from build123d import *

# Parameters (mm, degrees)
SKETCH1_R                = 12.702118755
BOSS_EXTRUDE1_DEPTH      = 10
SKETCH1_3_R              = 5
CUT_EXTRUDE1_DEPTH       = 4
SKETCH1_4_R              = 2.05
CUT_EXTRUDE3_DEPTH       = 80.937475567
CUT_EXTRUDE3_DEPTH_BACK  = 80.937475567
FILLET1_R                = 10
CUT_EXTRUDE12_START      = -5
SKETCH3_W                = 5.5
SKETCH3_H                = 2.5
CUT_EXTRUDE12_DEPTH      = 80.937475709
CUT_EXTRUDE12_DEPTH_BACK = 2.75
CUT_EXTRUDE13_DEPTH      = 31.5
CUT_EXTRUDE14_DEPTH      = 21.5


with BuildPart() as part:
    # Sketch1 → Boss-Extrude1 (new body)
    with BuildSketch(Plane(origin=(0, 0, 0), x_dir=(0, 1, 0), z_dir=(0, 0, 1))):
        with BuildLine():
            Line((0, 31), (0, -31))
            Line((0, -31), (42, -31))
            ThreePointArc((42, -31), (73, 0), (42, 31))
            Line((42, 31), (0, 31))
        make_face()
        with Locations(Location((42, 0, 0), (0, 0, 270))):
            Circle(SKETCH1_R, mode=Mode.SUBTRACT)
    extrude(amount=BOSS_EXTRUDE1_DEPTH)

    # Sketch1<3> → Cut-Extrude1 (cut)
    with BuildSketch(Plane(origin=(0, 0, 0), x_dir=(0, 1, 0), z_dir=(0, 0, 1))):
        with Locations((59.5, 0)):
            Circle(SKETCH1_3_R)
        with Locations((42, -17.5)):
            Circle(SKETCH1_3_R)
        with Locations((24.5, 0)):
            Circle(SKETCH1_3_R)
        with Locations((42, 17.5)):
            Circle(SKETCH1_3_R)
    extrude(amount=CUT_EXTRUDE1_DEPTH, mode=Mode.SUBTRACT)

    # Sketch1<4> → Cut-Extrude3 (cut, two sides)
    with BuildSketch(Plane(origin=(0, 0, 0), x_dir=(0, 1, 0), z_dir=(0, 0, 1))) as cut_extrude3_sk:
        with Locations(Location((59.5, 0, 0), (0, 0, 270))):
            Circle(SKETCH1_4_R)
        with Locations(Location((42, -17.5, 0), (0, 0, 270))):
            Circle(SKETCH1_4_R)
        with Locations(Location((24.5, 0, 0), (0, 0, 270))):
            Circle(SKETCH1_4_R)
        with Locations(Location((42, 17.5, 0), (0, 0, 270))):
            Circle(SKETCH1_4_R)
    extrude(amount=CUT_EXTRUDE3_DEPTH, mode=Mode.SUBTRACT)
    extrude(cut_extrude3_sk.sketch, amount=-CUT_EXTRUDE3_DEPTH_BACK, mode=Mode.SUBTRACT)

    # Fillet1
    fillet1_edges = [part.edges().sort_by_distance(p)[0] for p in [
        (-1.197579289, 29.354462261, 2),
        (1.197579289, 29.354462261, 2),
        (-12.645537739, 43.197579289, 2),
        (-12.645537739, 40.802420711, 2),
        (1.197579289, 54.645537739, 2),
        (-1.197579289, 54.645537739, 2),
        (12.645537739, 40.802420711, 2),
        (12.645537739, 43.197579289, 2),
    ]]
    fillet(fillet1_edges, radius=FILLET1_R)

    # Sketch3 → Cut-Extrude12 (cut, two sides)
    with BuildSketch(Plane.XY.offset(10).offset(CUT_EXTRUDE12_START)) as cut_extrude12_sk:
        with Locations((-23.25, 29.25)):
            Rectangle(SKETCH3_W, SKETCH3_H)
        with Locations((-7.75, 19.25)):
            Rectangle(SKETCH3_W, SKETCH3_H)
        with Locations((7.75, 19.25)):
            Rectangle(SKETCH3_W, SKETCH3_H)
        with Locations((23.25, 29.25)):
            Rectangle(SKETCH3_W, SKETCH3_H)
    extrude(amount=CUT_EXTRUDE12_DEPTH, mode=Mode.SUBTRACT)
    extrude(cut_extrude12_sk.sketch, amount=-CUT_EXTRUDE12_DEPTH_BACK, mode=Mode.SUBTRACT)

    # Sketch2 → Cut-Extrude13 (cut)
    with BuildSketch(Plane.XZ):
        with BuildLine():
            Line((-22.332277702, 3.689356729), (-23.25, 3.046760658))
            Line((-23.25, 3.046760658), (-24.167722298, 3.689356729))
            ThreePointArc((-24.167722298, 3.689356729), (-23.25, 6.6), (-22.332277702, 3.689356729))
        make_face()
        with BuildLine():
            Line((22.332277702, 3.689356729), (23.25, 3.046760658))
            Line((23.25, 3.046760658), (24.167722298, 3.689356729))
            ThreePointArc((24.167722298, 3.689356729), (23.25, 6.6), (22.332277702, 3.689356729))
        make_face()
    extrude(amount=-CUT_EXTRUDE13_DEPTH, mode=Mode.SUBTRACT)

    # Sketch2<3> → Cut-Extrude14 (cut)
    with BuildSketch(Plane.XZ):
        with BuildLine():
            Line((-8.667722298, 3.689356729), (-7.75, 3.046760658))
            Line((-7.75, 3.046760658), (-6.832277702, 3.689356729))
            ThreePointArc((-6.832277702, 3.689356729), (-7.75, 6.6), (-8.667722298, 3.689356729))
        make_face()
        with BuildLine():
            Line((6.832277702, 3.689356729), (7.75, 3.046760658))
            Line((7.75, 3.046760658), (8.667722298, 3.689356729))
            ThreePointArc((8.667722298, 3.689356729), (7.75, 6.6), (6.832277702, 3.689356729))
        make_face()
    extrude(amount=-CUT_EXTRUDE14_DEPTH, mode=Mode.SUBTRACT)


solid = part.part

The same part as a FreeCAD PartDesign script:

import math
import FreeCAD as App
import Part
import Sketcher
from FreeCAD import Vector
Q = App.Units.Quantity


def edges_at(feature, points):
    """Names of the edges that pass closest to the given points."""
    edges = feature.Shape.Edges
    near = lambda p: min(range(len(edges)), key=lambda i: edges[i].distToShape(Part.Vertex(*p))[0])
    return sorted({f"Edge{near(p) + 1}" for p in points})


def add_polygon(sketch, points):
    """Adds a closed chain of lines whose ends are joined by coincident constraints."""
    first, n = sketch.GeometryCount, len(points)
    for a, b in zip(points, points[1:] + points[:1]):
        sketch.addGeometry(Part.LineSegment(App.Vector(*a, 0), App.Vector(*b, 0)), False)
    for i in range(n):
        sketch.addConstraint(Sketcher.Constraint("Coincident", first + i, 2, first + (i + 1) % n, 1))

doc = App.newDocument("Part")
params = doc.addObject("Spreadsheet::Sheet", "Params")
for row, (alias, value) in enumerate([
    ("sketch1_radius", "31 mm"),
    ("sketch1_height", "42 mm"),
    ("pad1_length", "10 mm"),
    ("sketch2_diameter", "10 mm"),
    ("pocket1_length", "4 mm"),
    ("sketch3_diameter", "4.1 mm"),
    ("fillet_radius", "10 mm"),
    ("sketch4_width", "5.5 mm"),
    ("sketch4_height", "2.5 mm"),
    ("pocket3_length", "80.937476 mm"),
    ("pocket3_length2", "2.75 mm"),
    ("sketch5_radius", "1.6 mm"),
    ("pocket4_length", "31.5 mm"),
    ("sketch6_radius", "1.6 mm"),
    ("pocket5_length", "21.5 mm"),
], start=1):
    params.set(f"A{row}", alias)
    params.set(f"B{row}", "=" + value)
    params.setAlias(f"B{row}", alias)

body = doc.addObject("PartDesign::Body", "Body")

sketch1 = body.newObject("Sketcher::SketchObject", "Sketch")
sketch1.AttachmentSupport = (doc.getObject("XY_Plane"), [""])
sketch1.MapMode = "FlatFace"
sketch1.addGeometry(Part.LineSegment(Vector(-31, 0, 0), Vector(31, 0, 0)), False)
sketch1.addGeometry(Part.LineSegment(Vector(31, 0, 0), Vector(31, 42, 0)), False)
sketch1.addGeometry(Part.ArcOfCircle(Part.Circle(Vector(0, 42, 0), Vector(0, 0, 1), 31), math.radians(0), math.radians(180)), False)
sketch1.addGeometry(Part.LineSegment(Vector(-31, 42, 0), Vector(-31, 0, 0)), False)
sketch1.addGeometry(Part.Circle(Vector(0, 42, 0), Vector(0, 0, 1), 12.702119), False)
sketch1.addConstraint(Sketcher.Constraint("Coincident", 0, 2, 1, 1))
sketch1.addConstraint(Sketcher.Constraint("Tangent", 1, 2, 2, 1))
sketch1.addConstraint(Sketcher.Constraint("Tangent", 2, 2, 3, 1))
sketch1.addConstraint(Sketcher.Constraint("Coincident", 3, 2, 0, 1))
sketch1.addConstraint(Sketcher.Constraint("Horizontal", 0))
sketch1.addConstraint(Sketcher.Constraint("Vertical", 1))
sketch1.addConstraint(Sketcher.Constraint("Vertical", 3))
sketch1.addConstraint(Sketcher.Constraint("Coincident", 4, 3, 2, 3))
sketch1.addConstraint(Sketcher.Constraint("Symmetric", 0, 2, 3, 2, -1, 1))
sketch1.addConstraint(Sketcher.Constraint("Radius", 2, 31.0))
sketch1.addConstraint(Sketcher.Constraint("DistanceY", 1, 1, 1, 2, 42.0))
sketch1.addConstraint(Sketcher.Constraint("Diameter", 4, 25.404238))
sketch1.setExpression("Constraints[9]", "Params.sketch1_radius")
sketch1.setExpression("Constraints[10]", "Params.sketch1_height")
pad1 = body.newObject("PartDesign::Pad", "Pad")
pad1.Profile = sketch1
pad1.setExpression("Length", "Params.pad1_length")

sketch2 = body.newObject("Sketcher::SketchObject", "Sketch001")
sketch2.AttachmentSupport = (doc.getObject("XY_Plane"), [""])
sketch2.MapMode = "FlatFace"
sketch2.addGeometry(Part.Circle(Vector(0, 59.5, 0), Vector(0, 0, 1), 5), False)
sketch2.addGeometry(Part.Circle(Vector(17.5, 42, 0), Vector(0, 0, 1), 5), False)
sketch2.addGeometry(Part.Circle(Vector(0, 24.5, 0), Vector(0, 0, 1), 5), False)
sketch2.addGeometry(Part.Circle(Vector(-17.5, 42, 0), Vector(0, 0, 1), 5), False)
sketch2.addConstraint(Sketcher.Constraint("Equal", 0, 1))
sketch2.addConstraint(Sketcher.Constraint("Equal", 1, 2))
sketch2.addConstraint(Sketcher.Constraint("Equal", 2, 3))
sketch2.addConstraint(Sketcher.Constraint("Symmetric", 1, 3, 3, 3, -2))
sketch2.addConstraint(Sketcher.Constraint("PointOnObject", 0, 3, -2))
sketch2.addConstraint(Sketcher.Constraint("PointOnObject", 2, 3, -2))
sketch2.addConstraint(Sketcher.Constraint("Diameter", 0, 10.0))
sketch2.addConstraint(Sketcher.Constraint("DistanceY", -1, 1, 1, 3, 42.0))
sketch2.addConstraint(Sketcher.Constraint("DistanceY", 2, 3, 0, 3, 35.0))
sketch2.addConstraint(Sketcher.Constraint("DistanceX", 3, 3, 1, 3, 35.0))
sketch2.addConstraint(Sketcher.Constraint("DistanceY", -1, 1, 0, 3, 59.5))
sketch2.setExpression("Constraints[6]", "Params.sketch2_diameter")
pocket1 = body.newObject("PartDesign::Pocket", "Pocket")
pocket1.Profile = sketch2
pocket1.setExpression("Length", "Params.pocket1_length")
pocket1.Reversed = True

sketch3 = body.newObject("Sketcher::SketchObject", "Sketch002")
sketch3.AttachmentSupport = (doc.getObject("XY_Plane"), [""])
sketch3.MapMode = "FlatFace"
sketch3.addGeometry(Part.Circle(Vector(0, 59.5, 0), Vector(0, 0, 1), 2.05), False)
sketch3.addGeometry(Part.Circle(Vector(17.5, 42, 0), Vector(0, 0, 1), 2.05), False)
sketch3.addGeometry(Part.Circle(Vector(0, 24.5, 0), Vector(0, 0, 1), 2.05), False)
sketch3.addGeometry(Part.Circle(Vector(-17.5, 42, 0), Vector(0, 0, 1), 2.05), False)
sketch3.addConstraint(Sketcher.Constraint("Equal", 0, 1))
sketch3.addConstraint(Sketcher.Constraint("Equal", 1, 2))
sketch3.addConstraint(Sketcher.Constraint("Equal", 2, 3))
sketch3.addConstraint(Sketcher.Constraint("Symmetric", 1, 3, 3, 3, -2))
sketch3.addConstraint(Sketcher.Constraint("PointOnObject", 0, 3, -2))
sketch3.addConstraint(Sketcher.Constraint("PointOnObject", 2, 3, -2))
sketch3.addConstraint(Sketcher.Constraint("Diameter", 0, 4.1))
sketch3.addConstraint(Sketcher.Constraint("DistanceY", -1, 1, 1, 3, 42.0))
sketch3.addConstraint(Sketcher.Constraint("DistanceY", 2, 3, 0, 3, 35.0))
sketch3.addConstraint(Sketcher.Constraint("DistanceX", 3, 3, 1, 3, 35.0))
sketch3.addConstraint(Sketcher.Constraint("DistanceY", -1, 1, 0, 3, 59.5))
sketch3.setExpression("Constraints[6]", "Params.sketch3_diameter")
pocket2 = body.newObject("PartDesign::Pocket", "Pocket001")
pocket2.Profile = sketch3
pocket2.Type = "ThroughAll"
pocket2.Midplane = True
doc.recompute()

fillet = body.newObject("PartDesign::Fillet", "Fillet")
fillet.Base = (pocket2, edges_at(pocket2, [
    (-1.198, 29.354, 2),
    (1.198, 29.354, 2),
    (-12.646, 43.198, 2),
    (-12.646, 40.802, 2),
    (1.198, 54.646, 2),
    (-1.198, 54.646, 2),
    (12.646, 40.802, 2),
    (12.646, 43.198, 2),
]))
fillet.setExpression("Radius", "Params.fillet_radius")

sketch4 = body.newObject("Sketcher::SketchObject", "Sketch003")
sketch4.AttachmentSupport = (doc.getObject("XY_Plane"), [""])
sketch4.MapMode = "FlatFace"
sketch4.AttachmentOffset = App.Placement(Vector(0, 0, 5), App.Rotation())
add_polygon(sketch4, [(-26, 30.5), (-26, 28), (-20.5, 28), (-20.5, 30.5)])
add_polygon(sketch4, [(-10.5, 20.5), (-10.5, 18), (-5, 18), (-5, 20.5)])
add_polygon(sketch4, [(5, 20.5), (5, 18), (10.5, 18), (10.5, 20.5)])
add_polygon(sketch4, [(20.5, 30.5), (20.5, 28), (26, 28), (26, 30.5)])
sketch4.addConstraint(Sketcher.Constraint("Vertical", 0))
sketch4.addConstraint(Sketcher.Constraint("Horizontal", 1))
sketch4.addConstraint(Sketcher.Constraint("Vertical", 2))
sketch4.addConstraint(Sketcher.Constraint("Horizontal", 3))
sketch4.addConstraint(Sketcher.Constraint("Vertical", 4))
sketch4.addConstraint(Sketcher.Constraint("Horizontal", 5))
sketch4.addConstraint(Sketcher.Constraint("Vertical", 6))
sketch4.addConstraint(Sketcher.Constraint("Horizontal", 7))
sketch4.addConstraint(Sketcher.Constraint("Vertical", 8))
sketch4.addConstraint(Sketcher.Constraint("Horizontal", 9))
sketch4.addConstraint(Sketcher.Constraint("Vertical", 10))
sketch4.addConstraint(Sketcher.Constraint("Horizontal", 11))
sketch4.addConstraint(Sketcher.Constraint("Vertical", 12))
sketch4.addConstraint(Sketcher.Constraint("Horizontal", 13))
sketch4.addConstraint(Sketcher.Constraint("Vertical", 14))
sketch4.addConstraint(Sketcher.Constraint("Horizontal", 15))
sketch4.addConstraint(Sketcher.Constraint("Symmetric", 5, 2, 8, 2, -2))
sketch4.addConstraint(Sketcher.Constraint("Symmetric", 7, 2, 10, 2, -2))
sketch4.addConstraint(Sketcher.Constraint("Symmetric", 1, 2, 12, 2, -2))
sketch4.addConstraint(Sketcher.Constraint("Symmetric", 3, 2, 14, 2, -2))
sketch4.addConstraint(Sketcher.Constraint("Equal", 3, 5))
sketch4.addConstraint(Sketcher.Constraint("Equal", 2, 4))
sketch4.addConstraint(Sketcher.Constraint("DistanceX", 1, 1, 1, 2, 5.5))
sketch4.addConstraint(Sketcher.Constraint("DistanceY", 0, 2, 0, 1, 2.5))
sketch4.addConstraint(Sketcher.Constraint("DistanceX", 0, 2, -1, 1, 26.0))
sketch4.addConstraint(Sketcher.Constraint("DistanceY", -1, 1, 0, 2, 28.0))
sketch4.addConstraint(Sketcher.Constraint("DistanceY", -1, 1, 4, 2, 18.0))
sketch4.addConstraint(Sketcher.Constraint("DistanceX", 5, 2, -1, 1, 5.0))
sketch4.setExpression("Constraints[38]", "Params.sketch4_width")
sketch4.setExpression("Constraints[39]", "Params.sketch4_height")
pocket3 = body.newObject("PartDesign::Pocket", "Pocket002")
pocket3.Profile = sketch4
pocket3.Type = "TwoLengths"
pocket3.setExpression("Length", "Params.pocket3_length")
pocket3.setExpression("Length2", "Params.pocket3_length2")
pocket3.Reversed = True

sketch5 = body.newObject("Sketcher::SketchObject", "Sketch004")
sketch5.AttachmentSupport = (doc.getObject("XZ_Plane"), [""])
sketch5.MapMode = "FlatFace"
sketch5.addGeometry(Part.LineSegment(Vector(-23.25, 3.046761, 0), Vector(-22.332278, 3.689357, 0)), False)
sketch5.addGeometry(Part.ArcOfCircle(Part.Circle(Vector(-23.25, 5, 0), Vector(0, 0, 1), 1.6), math.radians(-55), math.radians(235)), False)
sketch5.addGeometry(Part.LineSegment(Vector(-24.167722, 3.689357, 0), Vector(-23.25, 3.046761, 0)), False)
sketch5.addGeometry(Part.LineSegment(Vector(22.332278, 3.689357, 0), Vector(23.25, 3.046761, 0)), False)
sketch5.addGeometry(Part.LineSegment(Vector(23.25, 3.046761, 0), Vector(24.167722, 3.689357, 0)), False)
sketch5.addGeometry(Part.ArcOfCircle(Part.Circle(Vector(23.25, 5, 0), Vector(0, 0, 1), 1.6), math.radians(-55), math.radians(235)), False)
sketch5.addConstraint(Sketcher.Constraint("Tangent", 0, 2, 1, 1))
sketch5.addConstraint(Sketcher.Constraint("Tangent", 1, 2, 2, 1))
sketch5.addConstraint(Sketcher.Constraint("Coincident", 2, 2, 0, 1))
sketch5.addConstraint(Sketcher.Constraint("Coincident", 3, 2, 4, 1))
sketch5.addConstraint(Sketcher.Constraint("Tangent", 4, 2, 5, 1))
sketch5.addConstraint(Sketcher.Constraint("Tangent", 5, 2, 3, 1))
sketch5.addConstraint(Sketcher.Constraint("Equal", 1, 5))
sketch5.addConstraint(Sketcher.Constraint("Symmetric", 1, 3, 5, 3, -2))
sketch5.addConstraint(Sketcher.Constraint("Symmetric", 2, 2, 3, 2, -2))
sketch5.addConstraint(Sketcher.Constraint("Parallel", 2, 3))
sketch5.addConstraint(Sketcher.Constraint("Radius", 1, 1.6))
sketch5.addConstraint(Sketcher.Constraint("Angle", 0, Q("35 deg")))
sketch5.addConstraint(Sketcher.Constraint("DistanceY", -1, 1, 1, 3, 5.0))
sketch5.addConstraint(Sketcher.Constraint("DistanceX", 1, 3, 5, 3, 46.5))
sketch5.setExpression("Constraints[10]", "Params.sketch5_radius")
pocket4 = body.newObject("PartDesign::Pocket", "Pocket003")
pocket4.Profile = sketch5
pocket4.setExpression("Length", "Params.pocket4_length")

sketch6 = body.newObject("Sketcher::SketchObject", "Sketch005")
sketch6.AttachmentSupport = (doc.getObject("XZ_Plane"), [""])
sketch6.MapMode = "FlatFace"
sketch6.addGeometry(Part.LineSegment(Vector(-8.667722, 3.689357, 0), Vector(-7.75, 3.046761, 0)), False)
sketch6.addGeometry(Part.LineSegment(Vector(-7.75, 3.046761, 0), Vector(-6.832278, 3.689357, 0)), False)
sketch6.addGeometry(Part.ArcOfCircle(Part.Circle(Vector(-7.75, 5, 0), Vector(0, 0, 1), 1.6), math.radians(-55), math.radians(235)), False)
sketch6.addGeometry(Part.LineSegment(Vector(6.832278, 3.689357, 0), Vector(7.75, 3.046761, 0)), False)
sketch6.addGeometry(Part.LineSegment(Vector(7.75, 3.046761, 0), Vector(8.667722, 3.689357, 0)), False)
sketch6.addGeometry(Part.ArcOfCircle(Part.Circle(Vector(7.75, 5, 0), Vector(0, 0, 1), 1.6), math.radians(-55), math.radians(235)), False)
sketch6.addConstraint(Sketcher.Constraint("Coincident", 0, 2, 1, 1))
sketch6.addConstraint(Sketcher.Constraint("Tangent", 1, 2, 2, 1))
sketch6.addConstraint(Sketcher.Constraint("Tangent", 2, 2, 0, 1))
sketch6.addConstraint(Sketcher.Constraint("Coincident", 3, 2, 4, 1))
sketch6.addConstraint(Sketcher.Constraint("Tangent", 4, 2, 5, 1))
sketch6.addConstraint(Sketcher.Constraint("Tangent", 5, 2, 3, 1))
sketch6.addConstraint(Sketcher.Constraint("Equal", 2, 5))
sketch6.addConstraint(Sketcher.Constraint("Symmetric", 2, 3, 5, 3, -2))
sketch6.addConstraint(Sketcher.Constraint("Symmetric", 0, 2, 3, 2, -2))
sketch6.addConstraint(Sketcher.Constraint("Parallel", 0, 3))
sketch6.addConstraint(Sketcher.Constraint("Radius", 2, 1.6))
sketch6.addConstraint(Sketcher.Constraint("Angle", 0, Q("-35 deg")))
sketch6.addConstraint(Sketcher.Constraint("DistanceY", -1, 1, 2, 3, 5.0))
sketch6.addConstraint(Sketcher.Constraint("DistanceX", 2, 3, 5, 3, 15.5))
sketch6.setExpression("Constraints[10]", "Params.sketch6_radius")
pocket5 = body.newObject("PartDesign::Pocket", "Pocket004")
pocket5.Profile = sketch6
pocket5.setExpression("Length", "Params.pocket5_length")

doc.recompute()
